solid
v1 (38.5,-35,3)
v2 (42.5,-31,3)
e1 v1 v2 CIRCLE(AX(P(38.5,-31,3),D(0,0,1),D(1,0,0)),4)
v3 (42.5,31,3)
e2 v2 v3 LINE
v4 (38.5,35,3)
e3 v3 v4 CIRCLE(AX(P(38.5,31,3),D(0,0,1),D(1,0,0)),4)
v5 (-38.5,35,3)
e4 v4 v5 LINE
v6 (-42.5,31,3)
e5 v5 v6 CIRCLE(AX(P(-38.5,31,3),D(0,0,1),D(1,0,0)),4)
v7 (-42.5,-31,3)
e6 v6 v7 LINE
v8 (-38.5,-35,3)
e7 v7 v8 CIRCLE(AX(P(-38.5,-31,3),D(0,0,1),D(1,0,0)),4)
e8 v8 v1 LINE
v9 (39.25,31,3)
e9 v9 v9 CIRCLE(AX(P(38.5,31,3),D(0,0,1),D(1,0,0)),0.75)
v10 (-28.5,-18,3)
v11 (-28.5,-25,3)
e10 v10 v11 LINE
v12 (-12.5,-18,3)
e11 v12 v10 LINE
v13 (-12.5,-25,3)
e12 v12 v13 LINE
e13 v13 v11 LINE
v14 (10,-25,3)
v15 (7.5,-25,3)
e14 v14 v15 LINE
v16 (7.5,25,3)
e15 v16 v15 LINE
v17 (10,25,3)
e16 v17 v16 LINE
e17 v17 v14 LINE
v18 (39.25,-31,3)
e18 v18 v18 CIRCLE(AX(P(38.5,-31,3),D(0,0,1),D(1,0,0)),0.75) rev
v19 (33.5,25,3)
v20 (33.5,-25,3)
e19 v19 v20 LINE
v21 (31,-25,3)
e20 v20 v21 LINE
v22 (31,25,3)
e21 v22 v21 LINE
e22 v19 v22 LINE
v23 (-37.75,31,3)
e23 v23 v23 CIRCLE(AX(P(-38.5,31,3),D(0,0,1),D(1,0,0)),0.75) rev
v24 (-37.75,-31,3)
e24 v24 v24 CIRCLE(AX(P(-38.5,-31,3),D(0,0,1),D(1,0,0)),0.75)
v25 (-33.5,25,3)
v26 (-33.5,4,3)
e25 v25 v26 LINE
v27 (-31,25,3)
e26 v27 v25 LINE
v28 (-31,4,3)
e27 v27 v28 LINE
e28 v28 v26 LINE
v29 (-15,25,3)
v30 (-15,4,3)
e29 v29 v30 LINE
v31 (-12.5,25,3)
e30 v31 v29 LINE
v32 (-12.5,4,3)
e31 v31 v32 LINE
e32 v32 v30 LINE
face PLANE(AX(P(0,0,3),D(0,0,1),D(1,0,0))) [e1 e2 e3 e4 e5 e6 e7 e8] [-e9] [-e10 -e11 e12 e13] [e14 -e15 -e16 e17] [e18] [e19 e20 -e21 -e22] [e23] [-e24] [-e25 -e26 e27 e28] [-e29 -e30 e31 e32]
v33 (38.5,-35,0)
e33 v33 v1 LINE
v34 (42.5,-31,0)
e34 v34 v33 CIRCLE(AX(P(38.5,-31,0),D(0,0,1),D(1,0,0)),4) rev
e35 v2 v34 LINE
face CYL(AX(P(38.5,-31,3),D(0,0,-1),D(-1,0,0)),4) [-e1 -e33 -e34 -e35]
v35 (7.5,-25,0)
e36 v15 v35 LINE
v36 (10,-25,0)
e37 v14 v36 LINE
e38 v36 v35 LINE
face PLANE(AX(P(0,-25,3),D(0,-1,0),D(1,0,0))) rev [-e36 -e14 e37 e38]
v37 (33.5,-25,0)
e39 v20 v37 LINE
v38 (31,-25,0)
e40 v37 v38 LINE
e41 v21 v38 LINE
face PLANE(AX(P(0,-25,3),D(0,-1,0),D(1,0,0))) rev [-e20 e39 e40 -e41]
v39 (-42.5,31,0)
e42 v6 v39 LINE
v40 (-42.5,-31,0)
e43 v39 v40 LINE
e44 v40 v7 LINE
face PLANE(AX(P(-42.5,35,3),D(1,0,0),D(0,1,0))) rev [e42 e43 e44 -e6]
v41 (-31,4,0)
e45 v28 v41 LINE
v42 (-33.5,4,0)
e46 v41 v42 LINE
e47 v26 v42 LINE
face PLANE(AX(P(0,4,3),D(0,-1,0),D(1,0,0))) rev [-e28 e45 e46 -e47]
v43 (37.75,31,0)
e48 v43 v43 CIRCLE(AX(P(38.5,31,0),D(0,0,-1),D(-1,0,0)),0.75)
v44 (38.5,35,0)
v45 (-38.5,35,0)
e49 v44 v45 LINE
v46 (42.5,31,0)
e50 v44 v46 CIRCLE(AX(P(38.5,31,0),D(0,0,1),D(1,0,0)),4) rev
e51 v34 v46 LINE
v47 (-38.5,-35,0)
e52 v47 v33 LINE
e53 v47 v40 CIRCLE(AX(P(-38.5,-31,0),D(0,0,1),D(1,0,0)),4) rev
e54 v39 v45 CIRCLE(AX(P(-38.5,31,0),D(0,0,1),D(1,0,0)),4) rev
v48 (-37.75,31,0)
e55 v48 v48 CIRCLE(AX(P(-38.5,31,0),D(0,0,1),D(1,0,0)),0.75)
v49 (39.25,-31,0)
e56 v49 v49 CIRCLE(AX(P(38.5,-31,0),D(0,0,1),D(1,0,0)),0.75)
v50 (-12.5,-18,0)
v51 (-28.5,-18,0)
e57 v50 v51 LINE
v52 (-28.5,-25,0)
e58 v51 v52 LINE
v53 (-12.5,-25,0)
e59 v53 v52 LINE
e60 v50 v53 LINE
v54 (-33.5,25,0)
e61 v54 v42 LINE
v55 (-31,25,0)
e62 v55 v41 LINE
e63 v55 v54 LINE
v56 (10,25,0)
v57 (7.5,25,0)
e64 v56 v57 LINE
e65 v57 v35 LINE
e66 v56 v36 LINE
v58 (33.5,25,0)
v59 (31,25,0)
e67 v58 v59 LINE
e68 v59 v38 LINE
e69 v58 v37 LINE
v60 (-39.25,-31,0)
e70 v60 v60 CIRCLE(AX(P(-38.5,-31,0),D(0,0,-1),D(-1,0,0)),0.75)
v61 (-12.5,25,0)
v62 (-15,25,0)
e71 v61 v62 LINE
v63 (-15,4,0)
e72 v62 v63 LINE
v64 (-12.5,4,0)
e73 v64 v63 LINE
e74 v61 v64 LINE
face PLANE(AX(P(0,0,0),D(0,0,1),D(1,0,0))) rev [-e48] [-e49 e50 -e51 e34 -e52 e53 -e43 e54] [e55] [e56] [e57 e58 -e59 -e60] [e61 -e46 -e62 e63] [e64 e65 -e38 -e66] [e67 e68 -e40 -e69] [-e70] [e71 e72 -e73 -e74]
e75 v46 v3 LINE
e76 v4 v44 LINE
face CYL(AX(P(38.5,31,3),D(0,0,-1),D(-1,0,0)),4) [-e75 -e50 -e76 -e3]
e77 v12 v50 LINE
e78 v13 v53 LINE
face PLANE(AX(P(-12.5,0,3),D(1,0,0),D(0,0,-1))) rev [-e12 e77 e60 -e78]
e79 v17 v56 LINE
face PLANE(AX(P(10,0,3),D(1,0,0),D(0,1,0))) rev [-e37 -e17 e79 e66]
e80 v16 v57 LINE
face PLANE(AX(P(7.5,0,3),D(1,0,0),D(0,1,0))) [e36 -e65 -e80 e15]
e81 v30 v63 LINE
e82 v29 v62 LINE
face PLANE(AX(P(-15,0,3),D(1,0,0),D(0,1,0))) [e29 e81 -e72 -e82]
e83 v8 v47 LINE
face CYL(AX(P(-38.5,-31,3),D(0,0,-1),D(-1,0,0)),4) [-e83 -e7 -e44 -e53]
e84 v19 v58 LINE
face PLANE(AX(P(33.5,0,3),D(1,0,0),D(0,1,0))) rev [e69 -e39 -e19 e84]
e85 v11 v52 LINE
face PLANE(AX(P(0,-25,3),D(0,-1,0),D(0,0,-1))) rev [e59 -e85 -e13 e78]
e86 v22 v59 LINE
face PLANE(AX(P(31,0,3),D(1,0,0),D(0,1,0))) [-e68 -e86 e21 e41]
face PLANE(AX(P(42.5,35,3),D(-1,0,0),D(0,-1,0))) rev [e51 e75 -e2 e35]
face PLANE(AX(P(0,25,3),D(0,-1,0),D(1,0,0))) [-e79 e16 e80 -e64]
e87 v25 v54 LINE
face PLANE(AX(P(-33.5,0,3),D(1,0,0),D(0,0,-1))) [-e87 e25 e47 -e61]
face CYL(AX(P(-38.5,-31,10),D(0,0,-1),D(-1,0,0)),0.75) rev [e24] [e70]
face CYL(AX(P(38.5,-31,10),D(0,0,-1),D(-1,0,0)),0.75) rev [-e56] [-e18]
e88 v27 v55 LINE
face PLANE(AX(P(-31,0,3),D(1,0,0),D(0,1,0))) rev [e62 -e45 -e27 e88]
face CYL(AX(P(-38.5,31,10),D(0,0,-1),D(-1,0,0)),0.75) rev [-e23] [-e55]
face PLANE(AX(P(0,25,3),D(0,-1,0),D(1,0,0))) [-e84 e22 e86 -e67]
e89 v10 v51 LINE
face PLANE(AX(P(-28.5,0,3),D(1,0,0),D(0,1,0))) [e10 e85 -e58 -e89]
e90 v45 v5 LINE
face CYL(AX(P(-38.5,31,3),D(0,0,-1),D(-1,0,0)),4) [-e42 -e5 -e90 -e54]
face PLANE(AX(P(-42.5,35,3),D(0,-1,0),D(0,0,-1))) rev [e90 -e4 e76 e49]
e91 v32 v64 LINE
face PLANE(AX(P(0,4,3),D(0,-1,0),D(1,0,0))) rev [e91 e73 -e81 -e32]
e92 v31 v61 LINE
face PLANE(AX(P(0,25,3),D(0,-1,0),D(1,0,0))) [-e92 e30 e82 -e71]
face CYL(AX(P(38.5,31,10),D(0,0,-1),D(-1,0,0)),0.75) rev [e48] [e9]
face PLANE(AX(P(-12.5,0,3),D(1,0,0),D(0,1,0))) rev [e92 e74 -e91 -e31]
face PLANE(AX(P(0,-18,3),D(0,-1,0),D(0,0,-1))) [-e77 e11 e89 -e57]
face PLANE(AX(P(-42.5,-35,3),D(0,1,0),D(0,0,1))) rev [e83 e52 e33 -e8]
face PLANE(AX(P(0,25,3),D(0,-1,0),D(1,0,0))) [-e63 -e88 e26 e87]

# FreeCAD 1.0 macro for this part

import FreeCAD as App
import Part
import Sketcher

V = App.Vector
Q = App.Units.Quantity


def edges_at(feature, points):
    """Names of the edges that pass closest to the given points."""
    edges = feature.Shape.Edges
    near = lambda p: min(range(len(edges)), key=lambda i: edges[i].distToShape(Part.Vertex(*p))[0])
    return sorted({f"Edge{near(p) + 1}" for p in points})

doc = App.newDocument("Part")
body = doc.addObject("PartDesign::Body", "Body")

sketch1 = body.newObject("Sketcher::SketchObject", "Sketch")
sketch1.AttachmentSupport = (doc.getObject("XY_Plane"), [""])
sketch1.MapMode = "FlatFace"
sketch1.addGeometry([
    Part.LineSegment(V(-42.5, 35, 0), V(-42.5, -35, 0)),
    Part.LineSegment(V(-42.5, -35, 0), V(42.5, -35, 0)),
    Part.LineSegment(V(42.5, -35, 0), V(42.5, 35, 0)),
    Part.LineSegment(V(42.5, 35, 0), V(-42.5, 35, 0)),
], False)
sketch1.addConstraint([
    Sketcher.Constraint("Coincident", 0, 2, 1, 1),
    Sketcher.Constraint("Coincident", 1, 2, 2, 1),
    Sketcher.Constraint("Coincident", 2, 2, 3, 1),
    Sketcher.Constraint("Coincident", 3, 2, 0, 1),
    Sketcher.Constraint("Vertical", 0),
    Sketcher.Constraint("Horizontal", 1),
    Sketcher.Constraint("Vertical", 2),
    Sketcher.Constraint("Horizontal", 3),
    Sketcher.Constraint("Symmetric", 0, 2, 2, 2, -1, 1),
    Sketcher.Constraint("DistanceX", 1, 1, 1, 2, Q("85 mm")),
    Sketcher.Constraint("DistanceY", 0, 2, 0, 1, Q("70 mm")),
])
pad1 = body.newObject("PartDesign::Pad", "Pad")
pad1.Profile = sketch1
pad1.Length = 3

sketch2 = body.newObject("Sketcher::SketchObject", "Sketch001")
sketch2.AttachmentSupport = (doc.getObject("XY_Plane"), [""])
sketch2.MapMode = "FlatFace"
sketch2.addGeometry([
    Part.LineSegment(V(33.5, 25, 0), V(33.5, -25, 0)),
    Part.LineSegment(V(33.5, -25, 0), V(31, -25, 0)),
    Part.LineSegment(V(31, -25, 0), V(31, 25, 0)),
    Part.LineSegment(V(31, 25, 0), V(33.5, 25, 0)),
    Part.LineSegment(V(10, 25, 0), V(10, -25, 0)),
    Part.LineSegment(V(10, -25, 0), V(7.5, -25, 0)),
    Part.LineSegment(V(7.5, -25, 0), V(7.5, 25, 0)),
    Part.LineSegment(V(7.5, 25, 0), V(10, 25, 0)),
    Part.LineSegment(V(-12.5, 25, 0), V(-12.5, 4, 0)),
    Part.LineSegment(V(-12.5, 4, 0), V(-15, 4, 0)),
    Part.LineSegment(V(-15, 4, 0), V(-15, 25, 0)),
    Part.LineSegment(V(-15, 25, 0), V(-12.5, 25, 0)),
    Part.LineSegment(V(-31, 25, 0), V(-31, 4, 0)),
    Part.LineSegment(V(-31, 4, 0), V(-33.5, 4, 0)),
    Part.LineSegment(V(-33.5, 4, 0), V(-33.5, 25, 0)),
    Part.LineSegment(V(-33.5, 25, 0), V(-31, 25, 0)),
    Part.LineSegment(V(-12.5, -18, 0), V(-12.5, -25, 0)),
    Part.LineSegment(V(-12.5, -25, 0), V(-28.5, -25, 0)),
    Part.LineSegment(V(-28.5, -25, 0), V(-28.5, -18, 0)),
    Part.LineSegment(V(-28.5, -18, 0), V(-12.5, -18, 0)),
], False)
sketch2.addConstraint([
    Sketcher.Constraint("Coincident", 0, 2, 1, 1),
    Sketcher.Constraint("Coincident", 1, 2, 2, 1),
    Sketcher.Constraint("Coincident", 2, 2, 3, 1),
    Sketcher.Constraint("Coincident", 3, 2, 0, 1),
    Sketcher.Constraint("Coincident", 4, 2, 5, 1),
    Sketcher.Constraint("Coincident", 5, 2, 6, 1),
    Sketcher.Constraint("Coincident", 6, 2, 7, 1),
    Sketcher.Constraint("Coincident", 7, 2, 4, 1),
    Sketcher.Constraint("Coincident", 8, 2, 9, 1),
    Sketcher.Constraint("Coincident", 9, 2, 10, 1),
    Sketcher.Constraint("Coincident", 10, 2, 11, 1),
    Sketcher.Constraint("Coincident", 11, 2, 8, 1),
    Sketcher.Constraint("Coincident", 12, 2, 13, 1),
    Sketcher.Constraint("Coincident", 13, 2, 14, 1),
    Sketcher.Constraint("Coincident", 14, 2, 15, 1),
    Sketcher.Constraint("Coincident", 15, 2, 12, 1),
    Sketcher.Constraint("Coincident", 16, 2, 17, 1),
    Sketcher.Constraint("Coincident", 17, 2, 18, 1),
    Sketcher.Constraint("Coincident", 18, 2, 19, 1),
    Sketcher.Constraint("Coincident", 19, 2, 16, 1),
    Sketcher.Constraint("Vertical", 0),
    Sketcher.Constraint("Horizontal", 1),
    Sketcher.Constraint("Vertical", 2),
    Sketcher.Constraint("Horizontal", 3),
    Sketcher.Constraint("Vertical", 4),
    Sketcher.Constraint("Horizontal", 5),
    Sketcher.Constraint("Vertical", 6),
    Sketcher.Constraint("Horizontal", 7),
    Sketcher.Constraint("Vertical", 8),
    Sketcher.Constraint("Horizontal", 9),
    Sketcher.Constraint("Vertical", 10),
    Sketcher.Constraint("Horizontal", 11),
    Sketcher.Constraint("Vertical", 12),
    Sketcher.Constraint("Horizontal", 13),
    Sketcher.Constraint("Vertical", 14),
    Sketcher.Constraint("Horizontal", 15),
    Sketcher.Constraint("Vertical", 16),
    Sketcher.Constraint("Horizontal", 17),
    Sketcher.Constraint("Vertical", 18),
    Sketcher.Constraint("Horizontal", 19),
    Sketcher.Constraint("Symmetric", 0, 2, 14, 2, -1, 1),
    Sketcher.Constraint("Symmetric", 2, 2, 15, 2, -2),
    Sketcher.Constraint("Symmetric", 11, 2, 16, 2, -1),
    Sketcher.Constraint("Horizontal", 1, 2, 4, 2),
    Sketcher.Constraint("Horizontal", 3, 2, 6, 2),
    Sketcher.Constraint("Horizontal", 7, 2, 10, 2),
    Sketcher.Constraint("Horizontal", 9, 2, 12, 2),
    Sketcher.Constraint("Equal", 3, 5),
    Sketcher.Constraint("Equal", 7, 9),
    Sketcher.Constraint("DistanceX", 17, 2, 17, 1, Q("16 mm")),
    Sketcher.Constraint("DistanceY", 0, 2, 0, 1, Q("50 mm")),
    Sketcher.Constraint("DistanceY", 8, 2, 8, 1, Q("21 mm")),
    Sketcher.Constraint("DistanceY", 16, 2, 16, 1, Q("7 mm")),
    Sketcher.Constraint("DistanceX", 1, 2, 1, 1, Q("2.5 mm")),
    Sketcher.Constraint("DistanceX", -1, 1, 1, 2, Q("31 mm")),
    Sketcher.Constraint("DistanceX", -1, 1, 4, 2, Q("10 mm")),
    Sketcher.Constraint("DistanceX", 9, 2, -1, 1, Q("15 mm")),
])
pocket1 = body.newObject("PartDesign::Pocket", "Pocket")
pocket1.Profile = sketch2
pocket1.Type = "ThroughAll"
pocket1.Reversed = True
doc.recompute()

fillet = body.newObject("PartDesign::Fillet", "Fillet")
fillet.Base = (pocket1, edges_at(pocket1, [
    (42.5, -35, 1.5),
    (-42.5, -35, 1.5),
    (-42.5, 35, 1.5),
    (42.5, 35, 1.5),
]))
fillet.Radius = 4

sketch3 = body.newObject("Sketcher::SketchObject", "Sketch002")
sketch3.AttachmentSupport = (doc.getObject("XY_Plane"), [""])
sketch3.MapMode = "FlatFace"
sketch3.addGeometry([
    Part.Circle(V(38.5, 31, 0), V(0, 0, 1), 0.75),
    Part.Circle(V(-38.5, 31, 0), V(0, 0, 1), 0.75),
    Part.Circle(V(-38.5, -31, 0), V(0, 0, 1), 0.75),
    Part.Circle(V(38.5, -31, 0), V(0, 0, 1), 0.75),
], False)
sketch3.addConstraint([
    Sketcher.Constraint("Equal", 0, 1),
    Sketcher.Constraint("Equal", 1, 2),
    Sketcher.Constraint("Equal", 2, 3),
    Sketcher.Constraint("Symmetric", 0, 3, 2, 3, -1, 1),
    Sketcher.Constraint("Symmetric", 1, 3, 3, 3, -1, 1),
    Sketcher.Constraint("Symmetric", 0, 3, 1, 3, -2),
    Sketcher.Constraint("Diameter", 0, Q("1.5 mm")),
    Sketcher.Constraint("DistanceY", -1, 1, 0, 3, Q("31 mm")),
    Sketcher.Constraint("DistanceX", 1, 3, 0, 3, Q("77 mm")),
])
pocket2 = body.newObject("PartDesign::Pocket", "Pocket001")
pocket2.Profile = sketch3
pocket2.Length = 10
pocket2.Reversed = True

doc.recompute()
